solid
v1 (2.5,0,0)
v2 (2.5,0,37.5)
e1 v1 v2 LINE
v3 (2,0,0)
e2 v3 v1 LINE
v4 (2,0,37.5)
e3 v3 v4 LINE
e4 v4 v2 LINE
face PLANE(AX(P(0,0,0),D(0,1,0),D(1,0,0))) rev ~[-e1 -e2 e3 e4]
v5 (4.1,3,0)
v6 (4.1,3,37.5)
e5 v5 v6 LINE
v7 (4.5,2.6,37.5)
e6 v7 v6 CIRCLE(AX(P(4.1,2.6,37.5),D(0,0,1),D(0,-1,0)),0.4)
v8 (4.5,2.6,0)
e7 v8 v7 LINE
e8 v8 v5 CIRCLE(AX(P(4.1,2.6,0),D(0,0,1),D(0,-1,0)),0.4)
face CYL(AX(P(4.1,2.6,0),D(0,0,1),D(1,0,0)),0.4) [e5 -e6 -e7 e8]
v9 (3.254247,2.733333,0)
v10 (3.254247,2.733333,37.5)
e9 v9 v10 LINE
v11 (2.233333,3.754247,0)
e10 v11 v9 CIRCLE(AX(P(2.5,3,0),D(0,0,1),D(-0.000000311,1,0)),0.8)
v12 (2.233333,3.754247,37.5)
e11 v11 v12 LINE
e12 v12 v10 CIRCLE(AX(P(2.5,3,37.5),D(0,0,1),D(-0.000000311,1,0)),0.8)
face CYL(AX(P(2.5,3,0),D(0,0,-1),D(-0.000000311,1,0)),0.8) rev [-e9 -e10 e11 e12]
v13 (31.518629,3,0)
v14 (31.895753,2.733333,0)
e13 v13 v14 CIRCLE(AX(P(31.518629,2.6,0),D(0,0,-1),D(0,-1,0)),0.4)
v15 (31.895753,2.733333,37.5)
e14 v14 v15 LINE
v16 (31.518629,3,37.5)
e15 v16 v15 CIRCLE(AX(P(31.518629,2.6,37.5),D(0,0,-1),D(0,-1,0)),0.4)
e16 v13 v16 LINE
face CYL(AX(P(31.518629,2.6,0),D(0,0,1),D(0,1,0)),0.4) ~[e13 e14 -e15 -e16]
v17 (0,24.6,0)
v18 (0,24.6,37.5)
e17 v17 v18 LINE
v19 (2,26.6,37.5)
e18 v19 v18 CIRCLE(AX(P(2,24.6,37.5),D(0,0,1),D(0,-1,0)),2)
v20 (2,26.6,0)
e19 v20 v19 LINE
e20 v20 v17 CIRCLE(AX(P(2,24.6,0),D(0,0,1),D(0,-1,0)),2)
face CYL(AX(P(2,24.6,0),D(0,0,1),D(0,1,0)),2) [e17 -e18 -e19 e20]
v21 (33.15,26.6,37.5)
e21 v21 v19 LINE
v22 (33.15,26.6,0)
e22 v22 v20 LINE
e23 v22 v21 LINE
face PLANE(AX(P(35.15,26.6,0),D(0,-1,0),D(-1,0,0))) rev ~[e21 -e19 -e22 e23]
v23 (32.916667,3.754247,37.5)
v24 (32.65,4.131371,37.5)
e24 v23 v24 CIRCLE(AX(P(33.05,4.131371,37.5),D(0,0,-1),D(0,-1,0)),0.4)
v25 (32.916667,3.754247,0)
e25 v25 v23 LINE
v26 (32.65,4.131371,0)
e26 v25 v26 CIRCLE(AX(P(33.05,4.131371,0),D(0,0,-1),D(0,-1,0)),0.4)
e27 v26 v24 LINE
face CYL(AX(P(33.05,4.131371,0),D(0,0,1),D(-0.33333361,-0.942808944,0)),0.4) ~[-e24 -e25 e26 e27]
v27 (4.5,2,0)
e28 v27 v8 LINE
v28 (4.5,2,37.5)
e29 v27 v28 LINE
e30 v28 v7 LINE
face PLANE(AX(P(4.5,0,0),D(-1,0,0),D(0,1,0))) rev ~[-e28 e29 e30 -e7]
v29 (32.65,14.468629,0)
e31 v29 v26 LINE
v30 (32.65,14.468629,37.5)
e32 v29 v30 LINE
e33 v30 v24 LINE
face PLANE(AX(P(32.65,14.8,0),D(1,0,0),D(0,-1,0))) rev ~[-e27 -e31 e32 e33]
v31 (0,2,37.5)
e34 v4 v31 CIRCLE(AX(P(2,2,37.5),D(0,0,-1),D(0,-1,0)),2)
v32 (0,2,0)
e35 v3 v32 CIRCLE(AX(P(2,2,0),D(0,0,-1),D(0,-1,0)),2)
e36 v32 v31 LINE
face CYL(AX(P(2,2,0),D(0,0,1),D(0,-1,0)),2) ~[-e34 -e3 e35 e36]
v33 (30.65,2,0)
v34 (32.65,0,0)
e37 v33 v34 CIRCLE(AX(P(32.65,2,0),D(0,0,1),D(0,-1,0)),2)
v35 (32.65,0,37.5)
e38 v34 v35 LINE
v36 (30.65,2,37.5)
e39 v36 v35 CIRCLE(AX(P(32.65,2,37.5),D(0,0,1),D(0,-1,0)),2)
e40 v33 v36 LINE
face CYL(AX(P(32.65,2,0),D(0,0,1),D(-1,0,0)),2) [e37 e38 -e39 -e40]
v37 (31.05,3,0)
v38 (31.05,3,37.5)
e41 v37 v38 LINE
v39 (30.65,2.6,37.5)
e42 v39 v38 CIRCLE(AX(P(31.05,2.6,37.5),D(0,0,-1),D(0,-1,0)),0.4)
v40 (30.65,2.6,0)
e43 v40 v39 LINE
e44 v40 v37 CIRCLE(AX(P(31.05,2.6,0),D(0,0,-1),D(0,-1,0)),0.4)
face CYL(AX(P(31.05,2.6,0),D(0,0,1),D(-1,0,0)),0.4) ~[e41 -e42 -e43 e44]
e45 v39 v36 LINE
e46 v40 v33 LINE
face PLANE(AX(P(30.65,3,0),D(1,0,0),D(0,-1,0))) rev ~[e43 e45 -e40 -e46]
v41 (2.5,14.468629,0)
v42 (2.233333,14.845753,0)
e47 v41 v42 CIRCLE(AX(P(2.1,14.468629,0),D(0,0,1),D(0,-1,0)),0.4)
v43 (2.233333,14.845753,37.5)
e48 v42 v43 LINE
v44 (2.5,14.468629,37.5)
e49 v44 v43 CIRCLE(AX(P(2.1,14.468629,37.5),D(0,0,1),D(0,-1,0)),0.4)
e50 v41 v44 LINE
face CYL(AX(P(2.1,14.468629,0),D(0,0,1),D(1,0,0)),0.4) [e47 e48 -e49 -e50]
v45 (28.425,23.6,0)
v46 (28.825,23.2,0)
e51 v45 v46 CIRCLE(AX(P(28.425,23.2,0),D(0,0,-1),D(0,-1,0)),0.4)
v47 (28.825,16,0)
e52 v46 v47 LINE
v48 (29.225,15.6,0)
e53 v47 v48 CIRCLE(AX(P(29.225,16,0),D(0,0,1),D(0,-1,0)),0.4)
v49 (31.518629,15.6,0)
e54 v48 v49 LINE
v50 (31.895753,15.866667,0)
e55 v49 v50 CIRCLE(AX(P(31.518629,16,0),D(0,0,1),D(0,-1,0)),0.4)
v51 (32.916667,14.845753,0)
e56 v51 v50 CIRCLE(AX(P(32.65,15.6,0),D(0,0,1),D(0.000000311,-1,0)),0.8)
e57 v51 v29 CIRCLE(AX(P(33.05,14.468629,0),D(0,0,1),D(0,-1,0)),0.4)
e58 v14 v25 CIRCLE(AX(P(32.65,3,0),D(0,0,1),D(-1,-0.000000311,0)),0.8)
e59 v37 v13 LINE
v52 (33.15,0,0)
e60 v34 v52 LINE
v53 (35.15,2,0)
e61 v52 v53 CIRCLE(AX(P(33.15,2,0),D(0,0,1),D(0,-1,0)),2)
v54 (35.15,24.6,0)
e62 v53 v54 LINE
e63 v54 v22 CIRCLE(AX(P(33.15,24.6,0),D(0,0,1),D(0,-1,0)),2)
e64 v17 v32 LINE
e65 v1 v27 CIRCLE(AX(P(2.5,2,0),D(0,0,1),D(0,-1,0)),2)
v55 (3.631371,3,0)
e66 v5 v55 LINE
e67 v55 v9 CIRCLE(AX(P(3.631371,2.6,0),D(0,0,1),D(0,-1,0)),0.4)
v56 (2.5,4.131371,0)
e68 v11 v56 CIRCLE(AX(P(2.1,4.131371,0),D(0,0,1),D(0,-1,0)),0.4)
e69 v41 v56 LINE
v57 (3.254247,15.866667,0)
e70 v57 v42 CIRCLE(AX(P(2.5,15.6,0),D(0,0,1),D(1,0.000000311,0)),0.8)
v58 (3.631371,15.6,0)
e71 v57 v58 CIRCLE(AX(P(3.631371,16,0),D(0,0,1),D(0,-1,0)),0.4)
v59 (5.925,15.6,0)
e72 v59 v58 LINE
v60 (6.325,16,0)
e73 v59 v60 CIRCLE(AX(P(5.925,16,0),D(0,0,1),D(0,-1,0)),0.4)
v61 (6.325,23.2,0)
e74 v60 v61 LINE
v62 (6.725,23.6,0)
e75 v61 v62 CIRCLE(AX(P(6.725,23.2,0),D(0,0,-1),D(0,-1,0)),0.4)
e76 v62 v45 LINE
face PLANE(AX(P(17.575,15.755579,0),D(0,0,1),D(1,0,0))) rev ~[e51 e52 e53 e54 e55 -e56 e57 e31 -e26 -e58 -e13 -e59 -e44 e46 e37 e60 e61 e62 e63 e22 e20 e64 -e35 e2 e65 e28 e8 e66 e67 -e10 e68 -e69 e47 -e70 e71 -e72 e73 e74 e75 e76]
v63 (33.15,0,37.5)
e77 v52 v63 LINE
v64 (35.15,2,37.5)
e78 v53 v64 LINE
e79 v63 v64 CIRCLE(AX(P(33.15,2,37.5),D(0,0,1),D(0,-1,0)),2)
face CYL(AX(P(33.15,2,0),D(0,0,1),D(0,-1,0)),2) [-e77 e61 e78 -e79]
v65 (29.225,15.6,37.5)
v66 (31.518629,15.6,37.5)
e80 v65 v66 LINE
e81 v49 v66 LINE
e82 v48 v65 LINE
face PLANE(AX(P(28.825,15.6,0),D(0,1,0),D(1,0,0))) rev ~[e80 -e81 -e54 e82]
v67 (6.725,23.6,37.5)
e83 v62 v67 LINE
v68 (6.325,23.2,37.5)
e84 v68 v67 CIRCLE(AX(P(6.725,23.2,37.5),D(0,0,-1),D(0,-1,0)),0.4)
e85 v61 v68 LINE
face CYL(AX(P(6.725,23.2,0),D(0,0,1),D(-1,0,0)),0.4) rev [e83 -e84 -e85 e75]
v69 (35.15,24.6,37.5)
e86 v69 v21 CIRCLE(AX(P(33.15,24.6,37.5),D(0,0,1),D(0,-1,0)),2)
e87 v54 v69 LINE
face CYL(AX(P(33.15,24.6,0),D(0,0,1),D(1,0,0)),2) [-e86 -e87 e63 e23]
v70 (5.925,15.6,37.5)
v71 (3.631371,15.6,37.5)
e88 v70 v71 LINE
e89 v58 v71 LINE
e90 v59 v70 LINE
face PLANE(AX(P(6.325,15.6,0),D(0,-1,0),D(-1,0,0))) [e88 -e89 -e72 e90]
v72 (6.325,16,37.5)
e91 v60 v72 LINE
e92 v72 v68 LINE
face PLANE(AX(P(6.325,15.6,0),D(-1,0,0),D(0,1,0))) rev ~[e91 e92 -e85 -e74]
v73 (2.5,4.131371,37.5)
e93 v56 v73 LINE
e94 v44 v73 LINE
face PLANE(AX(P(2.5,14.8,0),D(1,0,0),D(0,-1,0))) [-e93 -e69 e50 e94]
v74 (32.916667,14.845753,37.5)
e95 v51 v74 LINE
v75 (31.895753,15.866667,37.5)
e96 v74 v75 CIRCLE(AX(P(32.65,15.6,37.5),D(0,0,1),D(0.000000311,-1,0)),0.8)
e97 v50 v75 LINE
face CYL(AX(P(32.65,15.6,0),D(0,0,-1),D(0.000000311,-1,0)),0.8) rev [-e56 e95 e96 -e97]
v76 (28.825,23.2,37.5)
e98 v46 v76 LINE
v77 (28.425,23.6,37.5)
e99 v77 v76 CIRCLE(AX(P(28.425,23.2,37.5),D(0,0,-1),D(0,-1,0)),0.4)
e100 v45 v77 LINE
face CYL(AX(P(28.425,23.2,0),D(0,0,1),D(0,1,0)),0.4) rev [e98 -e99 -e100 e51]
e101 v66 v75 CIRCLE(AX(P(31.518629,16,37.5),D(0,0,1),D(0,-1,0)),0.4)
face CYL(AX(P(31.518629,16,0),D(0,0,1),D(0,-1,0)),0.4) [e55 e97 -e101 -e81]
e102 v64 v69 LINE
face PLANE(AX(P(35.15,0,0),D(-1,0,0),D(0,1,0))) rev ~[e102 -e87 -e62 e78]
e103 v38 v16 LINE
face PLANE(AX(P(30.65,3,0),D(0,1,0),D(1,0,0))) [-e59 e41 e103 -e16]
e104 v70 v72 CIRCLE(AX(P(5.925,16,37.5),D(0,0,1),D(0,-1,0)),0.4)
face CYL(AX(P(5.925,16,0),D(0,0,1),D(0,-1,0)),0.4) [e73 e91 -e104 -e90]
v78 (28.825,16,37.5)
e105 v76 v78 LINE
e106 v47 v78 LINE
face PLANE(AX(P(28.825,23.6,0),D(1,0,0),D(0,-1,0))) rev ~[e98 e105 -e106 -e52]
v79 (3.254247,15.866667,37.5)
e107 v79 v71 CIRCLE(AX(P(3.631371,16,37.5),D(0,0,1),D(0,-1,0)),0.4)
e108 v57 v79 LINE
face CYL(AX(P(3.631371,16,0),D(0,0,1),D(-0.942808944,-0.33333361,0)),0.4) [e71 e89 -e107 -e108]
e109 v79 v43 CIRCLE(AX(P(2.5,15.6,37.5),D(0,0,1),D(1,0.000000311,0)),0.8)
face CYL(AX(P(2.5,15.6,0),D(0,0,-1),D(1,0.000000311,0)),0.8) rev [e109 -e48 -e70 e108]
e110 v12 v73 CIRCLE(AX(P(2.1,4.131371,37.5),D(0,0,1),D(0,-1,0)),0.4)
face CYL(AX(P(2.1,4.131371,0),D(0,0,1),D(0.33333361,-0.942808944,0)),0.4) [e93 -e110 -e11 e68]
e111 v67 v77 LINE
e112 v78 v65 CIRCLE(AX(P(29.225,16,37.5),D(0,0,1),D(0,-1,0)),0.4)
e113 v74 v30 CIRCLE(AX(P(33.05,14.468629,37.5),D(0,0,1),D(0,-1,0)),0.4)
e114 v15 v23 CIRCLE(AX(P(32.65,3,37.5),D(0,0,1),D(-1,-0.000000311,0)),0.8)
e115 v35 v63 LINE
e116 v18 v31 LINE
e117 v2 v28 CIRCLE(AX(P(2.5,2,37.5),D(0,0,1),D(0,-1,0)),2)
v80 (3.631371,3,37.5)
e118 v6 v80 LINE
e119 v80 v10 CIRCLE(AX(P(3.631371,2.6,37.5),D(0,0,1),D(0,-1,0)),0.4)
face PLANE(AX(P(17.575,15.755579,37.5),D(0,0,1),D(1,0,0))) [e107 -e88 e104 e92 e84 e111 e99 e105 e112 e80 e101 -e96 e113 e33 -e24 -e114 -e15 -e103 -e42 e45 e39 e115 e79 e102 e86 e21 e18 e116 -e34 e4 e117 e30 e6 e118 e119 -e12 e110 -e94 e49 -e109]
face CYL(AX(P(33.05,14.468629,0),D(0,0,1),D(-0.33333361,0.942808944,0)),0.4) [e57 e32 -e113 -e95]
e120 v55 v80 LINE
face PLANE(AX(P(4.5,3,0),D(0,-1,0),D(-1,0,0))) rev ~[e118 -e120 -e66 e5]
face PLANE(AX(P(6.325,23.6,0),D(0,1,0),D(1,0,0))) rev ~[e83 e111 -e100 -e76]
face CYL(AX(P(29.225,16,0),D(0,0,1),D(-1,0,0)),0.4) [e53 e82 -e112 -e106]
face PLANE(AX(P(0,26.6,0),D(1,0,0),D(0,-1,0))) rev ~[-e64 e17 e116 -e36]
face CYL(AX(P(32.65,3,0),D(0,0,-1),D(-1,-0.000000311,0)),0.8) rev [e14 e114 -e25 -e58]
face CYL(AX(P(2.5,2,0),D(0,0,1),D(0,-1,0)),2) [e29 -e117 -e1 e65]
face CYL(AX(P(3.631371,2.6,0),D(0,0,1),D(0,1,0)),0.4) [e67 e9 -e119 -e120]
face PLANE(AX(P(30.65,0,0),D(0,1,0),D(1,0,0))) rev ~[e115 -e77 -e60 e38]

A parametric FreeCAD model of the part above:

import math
import FreeCAD as App
import Part
import Sketcher

V = App.Vector
Q = App.Units.Quantity


def edges_at(feature, points):
    """Names of the edges that pass closest to the given points."""
    edges = feature.Shape.Edges
    near = lambda p: min(range(len(edges)), key=lambda i: edges[i].distToShape(Part.Vertex(*p))[0])
    return sorted({f"Edge{near(p) + 1}" for p in points})

doc = App.newDocument("Part")
body = doc.addObject("PartDesign::Body", "Body")

sketch1 = body.newObject("Sketcher::SketchObject", "Sketch")
sketch1.AttachmentSupport = (doc.getObject("XY_Plane"), [""])
sketch1.MapMode = "FlatFace"
sketch1.addGeometry(Part.LineSegment(V(0, 0, 0), V(4.5, 0, 0)), False)
sketch1.addGeometry(Part.LineSegment(V(4.5, 0, 0), V(4.5, 3, 0)), False)
sketch1.addGeometry(Part.LineSegment(V(4.5, 3, 0), V(3.3, 3, 0)), False)
sketch1.addGeometry(Part.ArcOfCircle(Part.Circle(V(2.5, 3, 0), V(0, 0, 1), 0.8), math.radians(90), math.radians(360)), False)
sketch1.addGeometry(Part.LineSegment(V(2.5, 3.8, 0), V(2.5, 14.8, 0)), False)
sketch1.addGeometry(Part.ArcOfCircle(Part.Circle(V(2.5, 15.6, 0), V(0, 0, 1), 0.8), math.radians(0), math.radians(270)), False)
sketch1.addGeometry(Part.LineSegment(V(3.3, 15.6, 0), V(6.3, 15.6, 0)), False)
sketch1.addGeometry(Part.LineSegment(V(6.3, 15.6, 0), V(6.3, 23.6, 0)), False)
sketch1.addGeometry(Part.LineSegment(V(6.3, 23.6, 0), V(28.8, 23.6, 0)), False)
sketch1.addGeometry(Part.LineSegment(V(28.8, 23.6, 0), V(28.8, 15.6, 0)), False)
sketch1.addGeometry(Part.LineSegment(V(28.8, 15.6, 0), V(31.9, 15.6, 0)), False)
sketch1.addGeometry(Part.ArcOfCircle(Part.Circle(V(32.6, 15.6, 0), V(0, 0, 1), 0.8), math.radians(-90), math.radians(180)), False)
sketch1.addGeometry(Part.LineSegment(V(32.6, 14.8, 0), V(32.6, 3.8, 0)), False)
sketch1.addGeometry(Part.ArcOfCircle(Part.Circle(V(32.6, 3, 0), V(0, 0, 1), 0.8), math.radians(-180), math.radians(90)), False)
sketch1.addGeometry(Part.LineSegment(V(31.9, 3, 0), V(30.6, 3, 0)), False)
sketch1.addGeometry(Part.LineSegment(V(30.6, 3, 0), V(30.6, 0, 0)), False)
sketch1.addGeometry(Part.LineSegment(V(30.6, 0, 0), V(35.1, 0, 0)), False)
sketch1.addGeometry(Part.LineSegment(V(35.1, 0, 0), V(35.1, 26.6, 0)), False)
sketch1.addGeometry(Part.LineSegment(V(35.1, 26.6, 0), V(0, 26.6, 0)), False)
sketch1.addGeometry(Part.LineSegment(V(0, 26.6, 0), V(0, 0, 0)), False)
sketch1.addConstraint(Sketcher.Constraint("Coincident", 0, 2, 1, 1))
sketch1.addConstraint(Sketcher.Constraint("Coincident", 1, 2, 2, 1))
sketch1.addConstraint(Sketcher.Constraint("Coincident", 2, 2, 3, 2))
sketch1.addConstraint(Sketcher.Constraint("Coincident", 3, 1, 4, 1))
sketch1.addConstraint(Sketcher.Constraint("Coincident", 4, 2, 5, 2))
sketch1.addConstraint(Sketcher.Constraint("Coincident", 5, 1, 6, 1))
sketch1.addConstraint(Sketcher.Constraint("Coincident", 6, 2, 7, 1))
sketch1.addConstraint(Sketcher.Constraint("Coincident", 7, 2, 8, 1))
sketch1.addConstraint(Sketcher.Constraint("Coincident", 8, 2, 9, 1))
sketch1.addConstraint(Sketcher.Constraint("Coincident", 9, 2, 10, 1))
sketch1.addConstraint(Sketcher.Constraint("Coincident", 10, 2, 11, 2))
sketch1.addConstraint(Sketcher.Constraint("Coincident", 11, 1, 12, 1))
sketch1.addConstraint(Sketcher.Constraint("Coincident", 12, 2, 13, 2))
sketch1.addConstraint(Sketcher.Constraint("Coincident", 13, 1, 14, 1))
sketch1.addConstraint(Sketcher.Constraint("Coincident", 14, 2, 15, 1))
sketch1.addConstraint(Sketcher.Constraint("Coincident", 15, 2, 16, 1))
sketch1.addConstraint(Sketcher.Constraint("Coincident", 16, 2, 17, 1))
sketch1.addConstraint(Sketcher.Constraint("Coincident", 17, 2, 18, 1))
sketch1.addConstraint(Sketcher.Constraint("Coincident", 18, 2, 19, 1))
sketch1.addConstraint(Sketcher.Constraint("Coincident", 19, 2, 0, 1))
sketch1.addConstraint(Sketcher.Constraint("Horizontal", 0))
sketch1.addConstraint(Sketcher.Constraint("Vertical", 1))
sketch1.addConstraint(Sketcher.Constraint("Horizontal", 2))
sketch1.addConstraint(Sketcher.Constraint("Vertical", 4))
sketch1.addConstraint(Sketcher.Constraint("Horizontal", 6))
sketch1.addConstraint(Sketcher.Constraint("Vertical", 7))
sketch1.addConstraint(Sketcher.Constraint("Horizontal", 8))
sketch1.addConstraint(Sketcher.Constraint("Vertical", 9))
sketch1.addConstraint(Sketcher.Constraint("Horizontal", 10))
sketch1.addConstraint(Sketcher.Constraint("Vertical", 12))
sketch1.addConstraint(Sketcher.Constraint("Horizontal", 14))
sketch1.addConstraint(Sketcher.Constraint("Vertical", 15))
sketch1.addConstraint(Sketcher.Constraint("Horizontal", 16))
sketch1.addConstraint(Sketcher.Constraint("Vertical", 17))
sketch1.addConstraint(Sketcher.Constraint("Horizontal", 18))
sketch1.addConstraint(Sketcher.Constraint("Vertical", 19))
sketch1.addConstraint(Sketcher.Constraint("Coincident", 19, 2, -1, 1))
sketch1.addConstraint(Sketcher.Constraint("Equal", 3, 5))
sketch1.addConstraint(Sketcher.Constraint("Equal", 5, 11))
sketch1.addConstraint(Sketcher.Constraint("Equal", 11, 13))
sketch1.addConstraint(Sketcher.Constraint("PointOnObject", 15, 2, -1))
sketch1.addConstraint(Sketcher.Constraint("Horizontal", 5, 3, 11, 3))
sketch1.addConstraint(Sketcher.Constraint("Horizontal", 3, 3, 13, 3))
sketch1.addConstraint(Sketcher.Constraint("Horizontal", 13, 3, 1, 2))
sketch1.addConstraint(Sketcher.Constraint("Horizontal", 11, 3, 5, 1))
sketch1.addConstraint(Sketcher.Constraint("Horizontal", 6, 2, 9, 2))
sketch1.addConstraint(Sketcher.Constraint("Horizontal", 2, 2, 13, 1))
sketch1.addConstraint(Sketcher.Constraint("Vertical", 3, 3, 5, 3))
sketch1.addConstraint(Sketcher.Constraint("Vertical", 11, 3, 13, 3))
sketch1.addConstraint(Sketcher.Constraint("Vertical", 5, 3, 3, 1))
sketch1.addConstraint(Sketcher.Constraint("Vertical", 13, 3, 11, 1))
sketch1.addConstraint(Sketcher.Constraint("Equal", 6, 10))
sketch1.addConstraint(Sketcher.Constraint("Equal", 2, 14))
sketch1.addConstraint(Sketcher.Constraint("Equal", 0, 16))
sketch1.addConstraint(Sketcher.Constraint("Radius", 3, Q("0.8 mm")))
sketch1.addConstraint(Sketcher.Constraint("DistanceY", 1, 1, 1, 2, Q("3 mm")))
sketch1.addConstraint(Sketcher.Constraint("DistanceY", 4, 1, 4, 2, Q("11 mm")))
sketch1.addConstraint(Sketcher.Constraint("DistanceY", 7, 1, 7, 2, Q("8 mm")))
sketch1.addConstraint(Sketcher.Constraint("DistanceX", 0, 1, 0, 2, Q("4.5 mm")))
sketch1.addConstraint(Sketcher.Constraint("DistanceX", 2, 2, 2, 1, Q("1.2 mm")))
sketch1.addConstraint(Sketcher.Constraint("DistanceX", 8, 1, 8, 2, Q("22.5 mm")))
sketch1.addConstraint(Sketcher.Constraint("DistanceY", 17, 1, 17, 2, Q("26.6 mm")))
sketch1.addConstraint(Sketcher.Constraint("DistanceX", 18, 2, 18, 1, Q("35.15 mm")))
pad1 = body.newObject("PartDesign::Pad", "Pad")
pad1.Profile = sketch1
pad1.Length = 37.5
doc.recompute()

fillet = body.newObject("PartDesign::Fillet", "Fillet")
fillet.Base = (pad1, edges_at(pad1, [
    (0, 26.6, 18.75),
    (0, 0, 18.75),
    (4.5, 0, 18.75),
    (30.65, 0, 18.75),
    (35.15, 0, 18.75),
    (35.15, 26.6, 18.75),
]))
fillet.Radius = 2
doc.recompute()

fillet2 = body.newObject("PartDesign::Fillet", "Fillet001")
fillet2.Base = (fillet, edges_at(fillet, [
    (6.325, 15.6, 18.75),
    (6.325, 23.6, 18.75),
    (28.825, 23.6, 18.75),
    (28.825, 15.6, 18.75),
    (4.5, 3, 18.75),
    (30.65, 3, 18.75),
    (3.3, 15.6, 18.75),
    (31.85, 15.6, 18.75),
    (2.5, 14.8, 18.75),
    (32.65, 14.8, 18.75),
    (3.3, 3, 18.75),
    (31.85, 3, 18.75),
    (32.65, 3.8, 18.75),
    (2.5, 3.8, 18.75),
]))
fillet2.Radius = 0.4

doc.recompute()
